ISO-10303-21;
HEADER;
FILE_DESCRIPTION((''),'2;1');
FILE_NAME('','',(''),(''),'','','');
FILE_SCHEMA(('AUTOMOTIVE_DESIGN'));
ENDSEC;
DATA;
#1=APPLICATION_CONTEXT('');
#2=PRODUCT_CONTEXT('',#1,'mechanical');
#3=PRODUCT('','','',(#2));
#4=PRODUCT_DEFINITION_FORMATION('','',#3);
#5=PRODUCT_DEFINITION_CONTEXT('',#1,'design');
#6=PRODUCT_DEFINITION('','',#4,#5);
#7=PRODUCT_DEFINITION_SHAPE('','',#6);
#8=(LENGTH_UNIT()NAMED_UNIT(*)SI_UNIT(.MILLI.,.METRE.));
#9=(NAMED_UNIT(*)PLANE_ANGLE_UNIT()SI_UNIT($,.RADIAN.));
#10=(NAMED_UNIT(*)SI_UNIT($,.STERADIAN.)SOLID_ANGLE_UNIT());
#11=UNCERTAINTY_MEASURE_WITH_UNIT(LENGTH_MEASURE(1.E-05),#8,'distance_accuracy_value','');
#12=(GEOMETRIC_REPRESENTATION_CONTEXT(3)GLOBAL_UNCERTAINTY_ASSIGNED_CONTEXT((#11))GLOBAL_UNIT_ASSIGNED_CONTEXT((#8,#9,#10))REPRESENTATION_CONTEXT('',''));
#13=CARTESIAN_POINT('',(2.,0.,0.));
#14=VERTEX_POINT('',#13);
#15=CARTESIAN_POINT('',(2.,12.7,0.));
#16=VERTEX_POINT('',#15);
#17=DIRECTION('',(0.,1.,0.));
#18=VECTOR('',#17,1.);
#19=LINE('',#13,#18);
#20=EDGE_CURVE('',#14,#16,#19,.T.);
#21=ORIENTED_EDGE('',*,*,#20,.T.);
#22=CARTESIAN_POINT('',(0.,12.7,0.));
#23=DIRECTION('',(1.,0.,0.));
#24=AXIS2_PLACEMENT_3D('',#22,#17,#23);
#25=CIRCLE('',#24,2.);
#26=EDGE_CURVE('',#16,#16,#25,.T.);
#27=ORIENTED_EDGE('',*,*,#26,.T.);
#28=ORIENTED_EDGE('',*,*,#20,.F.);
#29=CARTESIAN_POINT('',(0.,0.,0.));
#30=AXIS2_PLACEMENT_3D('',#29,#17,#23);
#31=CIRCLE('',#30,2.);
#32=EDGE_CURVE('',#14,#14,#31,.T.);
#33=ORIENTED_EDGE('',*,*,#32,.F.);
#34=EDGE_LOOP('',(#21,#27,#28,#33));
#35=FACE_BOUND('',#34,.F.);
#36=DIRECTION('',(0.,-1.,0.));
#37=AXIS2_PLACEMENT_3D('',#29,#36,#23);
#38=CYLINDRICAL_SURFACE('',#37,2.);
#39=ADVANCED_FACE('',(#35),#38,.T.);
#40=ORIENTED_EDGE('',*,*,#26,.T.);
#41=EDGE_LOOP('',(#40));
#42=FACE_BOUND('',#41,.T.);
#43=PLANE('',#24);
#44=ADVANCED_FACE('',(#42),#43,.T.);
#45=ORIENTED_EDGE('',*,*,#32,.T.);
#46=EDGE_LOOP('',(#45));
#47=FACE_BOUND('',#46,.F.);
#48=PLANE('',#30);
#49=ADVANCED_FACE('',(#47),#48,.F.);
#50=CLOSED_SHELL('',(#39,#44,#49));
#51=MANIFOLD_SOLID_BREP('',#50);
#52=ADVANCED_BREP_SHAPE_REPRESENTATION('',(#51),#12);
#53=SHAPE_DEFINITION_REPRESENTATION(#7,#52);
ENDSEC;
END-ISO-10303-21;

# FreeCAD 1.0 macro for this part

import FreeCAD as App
import Part
import Sketcher
Q = App.Units.Quantity

doc = App.newDocument("Part")
body = doc.addObject("PartDesign::Body", "Body")

# Sketch on XZ plane
sketch1 = body.newObject("Sketcher::SketchObject", "Sketch")
sketch1.AttachmentSupport = (doc.getObject("XZ_Plane"), [""])
sketch1.MapMode = "FlatFace"
sketch1.addGeometry(Part.Circle(App.Vector(0, 0, 0), App.Vector(0, 0, 1), 2), False)
sketch1.addConstraint(Sketcher.Constraint("Coincident", 0, 3, -1, 1))
sketch1.addConstraint(Sketcher.Constraint("Diameter", 0, Q("4 mm")))
pad1 = body.newObject("PartDesign::Pad", "Pad")
pad1.Profile = sketch1
pad1.Length = 12.7
pad1.Reversed = True

doc.recompute()
